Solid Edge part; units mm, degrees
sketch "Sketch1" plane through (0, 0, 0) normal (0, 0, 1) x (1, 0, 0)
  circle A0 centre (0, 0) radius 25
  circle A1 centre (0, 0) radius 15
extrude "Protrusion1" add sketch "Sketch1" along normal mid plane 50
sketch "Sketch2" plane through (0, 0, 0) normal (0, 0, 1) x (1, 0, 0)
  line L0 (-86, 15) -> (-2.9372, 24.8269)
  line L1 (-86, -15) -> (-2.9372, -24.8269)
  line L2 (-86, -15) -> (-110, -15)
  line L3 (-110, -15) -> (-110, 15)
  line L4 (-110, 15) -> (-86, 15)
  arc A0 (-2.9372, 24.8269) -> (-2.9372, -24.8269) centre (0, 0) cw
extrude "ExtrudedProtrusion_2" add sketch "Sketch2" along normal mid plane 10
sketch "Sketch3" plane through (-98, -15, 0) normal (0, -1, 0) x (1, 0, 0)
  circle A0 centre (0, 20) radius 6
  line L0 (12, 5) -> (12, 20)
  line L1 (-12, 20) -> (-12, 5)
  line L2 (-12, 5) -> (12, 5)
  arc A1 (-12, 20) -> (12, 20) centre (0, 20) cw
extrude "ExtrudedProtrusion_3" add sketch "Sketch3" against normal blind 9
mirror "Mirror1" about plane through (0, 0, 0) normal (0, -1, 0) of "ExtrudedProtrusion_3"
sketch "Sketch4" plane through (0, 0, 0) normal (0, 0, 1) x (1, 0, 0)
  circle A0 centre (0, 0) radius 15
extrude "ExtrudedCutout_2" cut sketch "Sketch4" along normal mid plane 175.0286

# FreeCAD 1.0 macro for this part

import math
import FreeCAD as App
import Part
import Sketcher

V = App.Vector

doc = App.newDocument("Part")
body = doc.addObject("PartDesign::Body", "Body")

# Sketch on XY plane
sketch1 = doc.addObject("Sketcher::SketchObject", "Sketch")
body.addObject(sketch1)
sketch1.AttachmentSupport = (doc.XY_Plane, [""])
sketch1.MapMode = "FlatFace"
sketch1.addGeometry(Part.Circle(V(0, 0, 0), V(0, 0, 1), 25), False)
sketch1.addGeometry(Part.Circle(V(0, 0, 0), V(0, 0, 1), 15), False)
sketch1.addConstraint(Sketcher.Constraint("Coincident", 0, 3, -1, 1))
sketch1.addConstraint(Sketcher.Constraint("Coincident", 1, 3, -1, 1))
sketch1.addConstraint(Sketcher.Constraint("Diameter", 0, 50.0))
sketch1.addConstraint(Sketcher.Constraint("Diameter", 1, 30.0))
pad1 = doc.addObject("PartDesign::Pad", "Pad")
body.addObject(pad1)
pad1.Profile = sketch1
pad1.Length = 50
pad1.Midplane = True

# Sketch on XY plane
sketch2 = doc.addObject("Sketcher::SketchObject", "Sketch001")
body.addObject(sketch2)
sketch2.AttachmentSupport = (doc.XY_Plane, [""])
sketch2.MapMode = "FlatFace"
sketch2.addGeometry(Part.LineSegment(V(-2.9372, 24.8269, 0), V(-86, 15, 0)), False)
sketch2.addGeometry(Part.LineSegment(V(-86, 15, 0), V(-110, 15, 0)), False)
sketch2.addGeometry(Part.LineSegment(V(-110, 15, 0), V(-110, -15, 0)), False)
sketch2.addGeometry(Part.LineSegment(V(-110, -15, 0), V(-86, -15, 0)), False)
sketch2.addGeometry(Part.LineSegment(V(-86, -15, 0), V(-2.9372, -24.8269, 0)), False)
sketch2.addGeometry(Part.ArcOfCircle(Part.Circle(V(0, 0, 0), V(0, 0, 1), 25.000042), math.radians(-96.747139), math.radians(96.747139)), False)
sketch2.addConstraint(Sketcher.Constraint("Coincident", 0, 2, 1, 1))
sketch2.addConstraint(Sketcher.Constraint("Coincident", 1, 2, 2, 1))
sketch2.addConstraint(Sketcher.Constraint("Coincident", 2, 2, 3, 1))
sketch2.addConstraint(Sketcher.Constraint("Coincident", 3, 2, 4, 1))
sketch2.addConstraint(Sketcher.Constraint("Tangent", 4, 2, 5, 1))
sketch2.addConstraint(Sketcher.Constraint("Tangent", 5, 2, 0, 1))
sketch2.addConstraint(Sketcher.Constraint("Horizontal", 1))
sketch2.addConstraint(Sketcher.Constraint("Vertical", 2))
sketch2.addConstraint(Sketcher.Constraint("Horizontal", 3))
sketch2.addConstraint(Sketcher.Constraint("Coincident", 5, 3, -1, 1))
sketch2.addConstraint(Sketcher.Constraint("Symmetric", 0, 2, 3, 2, -1))
sketch2.addConstraint(Sketcher.Constraint("Radius", 5, 25.0))
sketch2.addConstraint(Sketcher.Constraint("DistanceX", 1, 2, 1, 1, 24.0))
sketch2.addConstraint(Sketcher.Constraint("DistanceY", 2, 2, 2, 1, 30.0))
sketch2.addConstraint(Sketcher.Constraint("DistanceX", 0, 2, -1, 1, 86.0))
pad2 = doc.addObject("PartDesign::Pad", "Pad001")
body.addObject(pad2)
pad2.Profile = sketch2
pad2.Length = 10
pad2.Midplane = True

# Sketch on XZ plane
sketch3 = doc.addObject("Sketcher::SketchObject", "Sketch002")
body.addObject(sketch3)
sketch3.AttachmentSupport = (doc.XZ_Plane, [""])
sketch3.MapMode = "FlatFace"
sketch3.AttachmentOffset = App.Placement(V(0, 0, 15), App.Rotation())
sketch3.addGeometry(Part.LineSegment(V(-110, 5, 0), V(-86, 5, 0)), False)
sketch3.addGeometry(Part.LineSegment(V(-86, 5, 0), V(-86, 20, 0)), False)
sketch3.addGeometry(Part.ArcOfCircle(Part.Circle(V(-98, 20, 0), V(0, 0, 1), 12), math.radians(0), math.radians(180)), False)
sketch3.addGeometry(Part.LineSegment(V(-110, 20, 0), V(-110, 5, 0)), False)
sketch3.addGeometry(Part.Circle(V(-98, 20, 0), V(0, 0, 1), 6), False)
sketch3.addConstraint(Sketcher.Constraint("Coincident", 0, 2, 1, 1))
sketch3.addConstraint(Sketcher.Constraint("Tangent", 1, 2, 2, 1))
sketch3.addConstraint(Sketcher.Constraint("Tangent", 2, 2, 3, 1))
sketch3.addConstraint(Sketcher.Constraint("Coincident", 3, 2, 0, 1))
sketch3.addConstraint(Sketcher.Constraint("Horizontal", 0))
sketch3.addConstraint(Sketcher.Constraint("Vertical", 1))
sketch3.addConstraint(Sketcher.Constraint("Vertical", 3))
sketch3.addConstraint(Sketcher.Constraint("Coincident", 4, 3, 2, 3))
sketch3.addConstraint(Sketcher.Constraint("Diameter", 4, 12.0))
sketch3.addConstraint(Sketcher.Constraint("Radius", 2, 12.0))
sketch3.addConstraint(Sketcher.Constraint("DistanceY", 1, 1, 1, 2, 15.0))
sketch3.addConstraint(Sketcher.Constraint("DistanceX", 2, 3, -1, 1, 98.0))
sketch3.addConstraint(Sketcher.Constraint("DistanceY", -1, 1, 2, 3, 20.0))
pad3 = doc.addObject("PartDesign::Pad", "Pad002")
body.addObject(pad3)
pad3.Profile = sketch3
pad3.Length = 9
pad3.Reversed = True
doc.recompute()

mirrored = doc.addObject("PartDesign::Mirrored", "Mirrored")
body.addObject(mirrored)
mirrored.Originals = [pad3]
mirrored.MirrorPlane = (doc.XZ_Plane, [""])
body.Tip = mirrored

# Sketch on XY plane
sketch4 = doc.addObject("Sketcher::SketchObject", "Sketch003")
body.addObject(sketch4)
sketch4.AttachmentSupport = (doc.XY_Plane, [""])
sketch4.MapMode = "FlatFace"
sketch4.addGeometry(Part.Circle(V(0, 0, 0), V(0, 0, 1), 15), False)
sketch4.addConstraint(Sketcher.Constraint("Coincident", 0, 3, -1, 1))
sketch4.addConstraint(Sketcher.Constraint("Diameter", 0, 30.0))
pocket1 = doc.addObject("PartDesign::Pocket", "Pocket")
body.addObject(pocket1)
pocket1.Profile = sketch4
pocket1.Length = 175.0286
pocket1.Midplane = True

doc.recompute()
